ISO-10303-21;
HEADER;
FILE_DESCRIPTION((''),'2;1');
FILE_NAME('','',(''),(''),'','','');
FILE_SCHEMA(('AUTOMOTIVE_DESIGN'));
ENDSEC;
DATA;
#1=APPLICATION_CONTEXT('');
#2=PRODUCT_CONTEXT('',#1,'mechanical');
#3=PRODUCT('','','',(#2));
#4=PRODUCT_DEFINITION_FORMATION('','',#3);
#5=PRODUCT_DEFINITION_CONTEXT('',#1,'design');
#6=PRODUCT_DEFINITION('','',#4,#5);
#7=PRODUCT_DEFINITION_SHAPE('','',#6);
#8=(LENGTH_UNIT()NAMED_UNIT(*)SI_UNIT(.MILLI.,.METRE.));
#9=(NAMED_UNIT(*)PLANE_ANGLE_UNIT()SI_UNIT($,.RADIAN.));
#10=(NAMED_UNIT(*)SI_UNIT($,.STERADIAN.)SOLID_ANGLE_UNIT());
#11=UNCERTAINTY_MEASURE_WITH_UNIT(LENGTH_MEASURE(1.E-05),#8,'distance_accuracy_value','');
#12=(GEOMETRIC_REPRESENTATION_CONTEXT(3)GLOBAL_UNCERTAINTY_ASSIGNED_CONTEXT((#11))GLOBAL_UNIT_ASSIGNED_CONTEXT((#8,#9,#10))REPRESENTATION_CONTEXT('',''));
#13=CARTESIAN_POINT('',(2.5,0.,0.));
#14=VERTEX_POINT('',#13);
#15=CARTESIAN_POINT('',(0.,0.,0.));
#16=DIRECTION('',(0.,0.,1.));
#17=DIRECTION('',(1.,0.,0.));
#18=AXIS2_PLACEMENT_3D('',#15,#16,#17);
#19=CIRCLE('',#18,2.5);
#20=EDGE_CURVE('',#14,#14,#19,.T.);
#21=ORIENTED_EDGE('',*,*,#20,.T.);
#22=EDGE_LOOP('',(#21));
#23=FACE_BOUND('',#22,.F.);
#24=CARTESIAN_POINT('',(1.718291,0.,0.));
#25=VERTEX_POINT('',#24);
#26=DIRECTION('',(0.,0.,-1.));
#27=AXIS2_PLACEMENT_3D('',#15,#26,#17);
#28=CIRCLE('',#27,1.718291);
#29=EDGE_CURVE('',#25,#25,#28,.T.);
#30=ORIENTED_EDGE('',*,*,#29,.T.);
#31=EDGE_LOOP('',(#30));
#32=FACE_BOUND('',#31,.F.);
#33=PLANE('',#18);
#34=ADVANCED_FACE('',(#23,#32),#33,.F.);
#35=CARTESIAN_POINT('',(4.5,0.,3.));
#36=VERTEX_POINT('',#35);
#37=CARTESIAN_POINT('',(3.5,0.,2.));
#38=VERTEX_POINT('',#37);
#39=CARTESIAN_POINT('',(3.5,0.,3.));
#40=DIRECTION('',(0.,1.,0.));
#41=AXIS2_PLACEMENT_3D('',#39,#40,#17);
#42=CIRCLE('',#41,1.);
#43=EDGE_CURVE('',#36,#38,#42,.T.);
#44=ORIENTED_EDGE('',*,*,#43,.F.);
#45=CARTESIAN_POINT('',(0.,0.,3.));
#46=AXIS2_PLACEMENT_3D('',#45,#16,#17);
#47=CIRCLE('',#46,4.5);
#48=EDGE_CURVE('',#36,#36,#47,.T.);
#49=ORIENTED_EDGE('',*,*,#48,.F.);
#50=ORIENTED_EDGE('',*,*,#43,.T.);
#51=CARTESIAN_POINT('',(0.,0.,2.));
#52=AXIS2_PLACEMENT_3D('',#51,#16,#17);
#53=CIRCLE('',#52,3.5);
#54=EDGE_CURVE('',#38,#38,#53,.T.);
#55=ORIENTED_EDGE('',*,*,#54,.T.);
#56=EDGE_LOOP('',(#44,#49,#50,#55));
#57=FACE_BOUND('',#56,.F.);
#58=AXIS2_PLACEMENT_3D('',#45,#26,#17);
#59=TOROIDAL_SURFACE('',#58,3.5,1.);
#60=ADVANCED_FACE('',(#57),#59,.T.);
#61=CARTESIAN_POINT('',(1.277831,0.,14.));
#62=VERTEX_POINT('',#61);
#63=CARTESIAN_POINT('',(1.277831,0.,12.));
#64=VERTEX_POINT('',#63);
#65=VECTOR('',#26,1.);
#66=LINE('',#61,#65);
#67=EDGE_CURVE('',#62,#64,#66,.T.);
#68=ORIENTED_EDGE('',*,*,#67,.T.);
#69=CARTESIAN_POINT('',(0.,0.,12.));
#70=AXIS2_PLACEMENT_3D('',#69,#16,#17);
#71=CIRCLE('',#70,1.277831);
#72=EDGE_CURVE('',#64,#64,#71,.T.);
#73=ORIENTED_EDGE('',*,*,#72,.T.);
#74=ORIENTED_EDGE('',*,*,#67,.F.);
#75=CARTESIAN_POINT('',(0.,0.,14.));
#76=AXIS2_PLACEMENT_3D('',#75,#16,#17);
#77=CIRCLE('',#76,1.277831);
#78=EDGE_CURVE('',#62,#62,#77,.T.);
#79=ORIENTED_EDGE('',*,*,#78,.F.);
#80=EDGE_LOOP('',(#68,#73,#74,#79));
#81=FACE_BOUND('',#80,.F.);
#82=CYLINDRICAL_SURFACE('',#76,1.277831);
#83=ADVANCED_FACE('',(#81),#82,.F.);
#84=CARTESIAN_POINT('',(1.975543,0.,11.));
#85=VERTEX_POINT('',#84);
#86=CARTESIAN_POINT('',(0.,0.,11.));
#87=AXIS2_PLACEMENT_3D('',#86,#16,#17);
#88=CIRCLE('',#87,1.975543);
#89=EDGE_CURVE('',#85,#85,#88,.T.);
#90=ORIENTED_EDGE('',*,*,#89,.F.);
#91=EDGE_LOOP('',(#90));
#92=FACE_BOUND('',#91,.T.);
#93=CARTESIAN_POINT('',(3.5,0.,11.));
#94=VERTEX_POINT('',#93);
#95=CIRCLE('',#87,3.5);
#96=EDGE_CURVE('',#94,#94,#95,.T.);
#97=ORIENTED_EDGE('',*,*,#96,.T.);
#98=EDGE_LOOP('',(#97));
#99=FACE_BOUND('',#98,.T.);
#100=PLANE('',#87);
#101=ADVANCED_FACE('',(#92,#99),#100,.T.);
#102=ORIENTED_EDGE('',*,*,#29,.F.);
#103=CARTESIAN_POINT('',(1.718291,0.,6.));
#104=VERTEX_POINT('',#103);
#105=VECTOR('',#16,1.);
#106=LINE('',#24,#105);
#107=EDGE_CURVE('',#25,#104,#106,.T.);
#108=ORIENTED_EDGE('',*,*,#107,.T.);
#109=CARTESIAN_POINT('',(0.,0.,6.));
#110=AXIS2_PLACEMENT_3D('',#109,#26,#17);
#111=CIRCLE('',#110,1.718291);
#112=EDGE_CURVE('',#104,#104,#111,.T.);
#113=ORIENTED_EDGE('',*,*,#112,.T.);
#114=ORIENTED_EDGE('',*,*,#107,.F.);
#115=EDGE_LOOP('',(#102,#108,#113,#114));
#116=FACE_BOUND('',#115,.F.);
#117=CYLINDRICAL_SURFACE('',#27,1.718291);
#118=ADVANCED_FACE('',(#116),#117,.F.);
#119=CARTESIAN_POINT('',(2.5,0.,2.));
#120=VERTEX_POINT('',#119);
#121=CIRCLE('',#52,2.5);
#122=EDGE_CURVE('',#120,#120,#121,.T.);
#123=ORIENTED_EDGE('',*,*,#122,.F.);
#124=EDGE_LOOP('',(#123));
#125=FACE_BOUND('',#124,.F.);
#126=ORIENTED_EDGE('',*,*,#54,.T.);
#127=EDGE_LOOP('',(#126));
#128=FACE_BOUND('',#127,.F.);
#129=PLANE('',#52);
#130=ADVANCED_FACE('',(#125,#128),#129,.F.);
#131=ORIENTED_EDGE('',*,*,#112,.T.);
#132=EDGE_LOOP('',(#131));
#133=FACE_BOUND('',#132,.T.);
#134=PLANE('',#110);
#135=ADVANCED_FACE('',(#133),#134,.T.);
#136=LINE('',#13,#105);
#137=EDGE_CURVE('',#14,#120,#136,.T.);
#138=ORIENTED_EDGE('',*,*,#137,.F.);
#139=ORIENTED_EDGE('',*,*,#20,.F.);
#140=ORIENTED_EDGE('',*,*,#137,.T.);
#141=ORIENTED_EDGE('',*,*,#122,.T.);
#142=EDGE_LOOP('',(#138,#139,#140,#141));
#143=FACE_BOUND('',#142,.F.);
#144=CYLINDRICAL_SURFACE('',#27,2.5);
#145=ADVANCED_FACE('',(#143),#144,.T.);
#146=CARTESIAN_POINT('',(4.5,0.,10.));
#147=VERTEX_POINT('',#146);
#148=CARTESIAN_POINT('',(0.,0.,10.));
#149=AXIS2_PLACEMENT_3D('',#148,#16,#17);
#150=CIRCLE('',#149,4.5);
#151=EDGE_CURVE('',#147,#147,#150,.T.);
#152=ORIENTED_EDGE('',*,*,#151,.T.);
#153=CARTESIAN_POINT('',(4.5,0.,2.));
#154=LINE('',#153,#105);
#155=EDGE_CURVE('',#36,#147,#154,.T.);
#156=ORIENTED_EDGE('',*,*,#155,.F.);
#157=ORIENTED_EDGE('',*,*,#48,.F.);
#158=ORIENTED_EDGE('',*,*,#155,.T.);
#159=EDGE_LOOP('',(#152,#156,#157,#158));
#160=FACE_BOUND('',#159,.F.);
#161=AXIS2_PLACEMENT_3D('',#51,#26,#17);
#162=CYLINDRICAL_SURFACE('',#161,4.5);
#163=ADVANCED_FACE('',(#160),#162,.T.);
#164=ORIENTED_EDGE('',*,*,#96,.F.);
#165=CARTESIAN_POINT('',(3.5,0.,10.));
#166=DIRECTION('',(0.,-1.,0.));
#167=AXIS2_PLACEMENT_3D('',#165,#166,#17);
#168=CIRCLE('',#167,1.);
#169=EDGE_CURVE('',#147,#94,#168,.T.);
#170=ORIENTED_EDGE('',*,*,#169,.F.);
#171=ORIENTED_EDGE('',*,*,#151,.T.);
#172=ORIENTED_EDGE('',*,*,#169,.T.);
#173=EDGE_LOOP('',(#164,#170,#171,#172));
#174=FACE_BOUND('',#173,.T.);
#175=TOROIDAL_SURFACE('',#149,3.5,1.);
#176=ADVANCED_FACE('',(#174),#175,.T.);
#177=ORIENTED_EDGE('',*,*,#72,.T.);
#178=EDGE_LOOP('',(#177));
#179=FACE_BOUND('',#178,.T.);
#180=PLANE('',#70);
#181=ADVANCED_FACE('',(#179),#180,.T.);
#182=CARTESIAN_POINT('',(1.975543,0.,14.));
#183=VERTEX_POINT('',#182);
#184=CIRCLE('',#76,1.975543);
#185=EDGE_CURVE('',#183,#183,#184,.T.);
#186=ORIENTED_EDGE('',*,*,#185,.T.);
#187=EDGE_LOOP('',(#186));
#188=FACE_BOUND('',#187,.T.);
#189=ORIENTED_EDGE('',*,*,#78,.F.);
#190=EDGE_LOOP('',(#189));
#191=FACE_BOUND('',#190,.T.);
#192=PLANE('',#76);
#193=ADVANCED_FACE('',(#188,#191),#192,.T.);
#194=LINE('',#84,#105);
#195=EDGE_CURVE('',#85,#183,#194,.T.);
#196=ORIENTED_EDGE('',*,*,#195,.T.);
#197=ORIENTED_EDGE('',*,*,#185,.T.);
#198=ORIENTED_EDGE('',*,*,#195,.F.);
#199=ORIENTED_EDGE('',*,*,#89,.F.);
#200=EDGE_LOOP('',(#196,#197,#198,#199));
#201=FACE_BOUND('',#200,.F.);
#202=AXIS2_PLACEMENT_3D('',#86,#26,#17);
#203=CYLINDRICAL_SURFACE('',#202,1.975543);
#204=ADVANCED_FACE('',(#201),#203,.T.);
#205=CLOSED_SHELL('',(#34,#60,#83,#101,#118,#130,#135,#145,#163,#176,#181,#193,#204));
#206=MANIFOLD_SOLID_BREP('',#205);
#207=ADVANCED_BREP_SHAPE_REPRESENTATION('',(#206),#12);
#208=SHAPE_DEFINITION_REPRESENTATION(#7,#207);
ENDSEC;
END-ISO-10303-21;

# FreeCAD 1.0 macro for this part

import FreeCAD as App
import Part
import Sketcher
from FreeCAD import Vector
Q = App.Units.Quantity


def edges_at(feature, points):
    """Names of the edges that pass closest to the given points."""
    edges = feature.Shape.Edges
    near = lambda p: min(range(len(edges)), key=lambda i: edges[i].distToShape(Part.Vertex(*p))[0])
    return sorted({f"Edge{near(p) + 1}" for p in points})

doc = App.newDocument("Part")
params = doc.addObject("Spreadsheet::Sheet", "Params")
for row, (alias, value) in enumerate([
    ("sketch1_diameter", "5 mm"),
    ("pad1_length", "2 mm"),
    ("sketch2_diameter", "9 mm"),
    ("pad2_length", "9 mm"),
    ("pocket1_length", "6 mm"),
    ("fillet_radius", "1 mm"),
    ("pad3_length", "3 mm"),
    ("pocket2_length", "2 mm"),
], start=1):
    params.set(f"A{row}", alias)
    params.set(f"B{row}", "=" + value)
    params.setAlias(f"B{row}", alias)

body = doc.addObject("PartDesign::Body", "Body")

# Sketch on XY plane
sketch1 = body.newObject("Sketcher::SketchObject", "Sketch")
sketch1.AttachmentSupport = (doc.getObject("XY_Plane"), [""])
sketch1.MapMode = "FlatFace"
sketch1.addGeometry(Part.Circle(Vector(0, 0, 0), Vector(0, 0, 1), 2.5), False)
sketch1.addConstraint(Sketcher.Constraint("Coincident", 0, 3, -1, 1))
sketch1.addConstraint(Sketcher.Constraint("Diameter", 0, Q("5 mm")))
sketch1.setExpression("Constraints[1]", "Params.sketch1_diameter")
pad1 = body.newObject("PartDesign::Pad", "Pad")
pad1.Profile = sketch1
pad1.setExpression("Length", "Params.pad1_length")

# Sketch on XY plane
sketch2 = body.newObject("Sketcher::SketchObject", "Sketch001")
sketch2.AttachmentSupport = (doc.getObject("XY_Plane"), [""])
sketch2.MapMode = "FlatFace"
sketch2.AttachmentOffset = App.Placement(Vector(0, 0, 2), App.Rotation())
sketch2.addGeometry(Part.Circle(Vector(0, 0, 0), Vector(0, 0, 1), 4.5), False)
sketch2.addConstraint(Sketcher.Constraint("Coincident", 0, 3, -1, 1))
sketch2.addConstraint(Sketcher.Constraint("Diameter", 0, Q("9 mm")))
sketch2.setExpression("Constraints[1]", "Params.sketch2_diameter")
pad2 = body.newObject("PartDesign::Pad", "Pad001")
pad2.Profile = sketch2
pad2.setExpression("Length", "Params.pad2_length")

# Sketch on XY plane
sketch3 = body.newObject("Sketcher::SketchObject", "Sketch002")
sketch3.AttachmentSupport = (doc.getObject("XY_Plane"), [""])
sketch3.MapMode = "FlatFace"
sketch3.addGeometry(Part.Circle(Vector(0, 0, 0), Vector(0, 0, 1), 1.7), False)
sketch3.addConstraint(Sketcher.Constraint("Coincident", 0, 3, -1, 1))
sketch3.addConstraint(Sketcher.Constraint("Diameter", 0, Q("3.436582 mm")))
pocket1 = body.newObject("PartDesign::Pocket", "Pocket")
pocket1.Profile = sketch3
pocket1.setExpression("Length", "Params.pocket1_length")
pocket1.Reversed = True
doc.recompute()

fillet = body.newObject("PartDesign::Fillet", "Fillet")
fillet.Base = (pocket1, edges_at(pocket1, [(-4.5, 0, 11), (-4.5, 0, 2)]))
fillet.setExpression("Radius", "Params.fillet_radius")

# Sketch on XY plane
sketch4 = body.newObject("Sketcher::SketchObject", "Sketch003")
sketch4.AttachmentSupport = (doc.getObject("XY_Plane"), [""])
sketch4.MapMode = "FlatFace"
sketch4.AttachmentOffset = App.Placement(Vector(0, 0, 11), App.Rotation())
sketch4.addGeometry(Part.Circle(Vector(0, 0, 0), Vector(0, 0, 1), 2), False)
sketch4.addConstraint(Sketcher.Constraint("Coincident", 0, 3, -1, 1))
sketch4.addConstraint(Sketcher.Constraint("Diameter", 0, Q("3.951086 mm")))
pad3 = body.newObject("PartDesign::Pad", "Pad002")
pad3.Profile = sketch4
pad3.setExpression("Length", "Params.pad3_length")

# Sketch on XY plane
sketch5 = body.newObject("Sketcher::SketchObject", "Sketch004")
sketch5.AttachmentSupport = (doc.getObject("XY_Plane"), [""])
sketch5.MapMode = "FlatFace"
sketch5.AttachmentOffset = App.Placement(Vector(0, 0, 14), App.Rotation())
sketch5.addGeometry(Part.Circle(Vector(0, 0, 0), Vector(0, 0, 1), 1.3), False)
sketch5.addConstraint(Sketcher.Constraint("Coincident", 0, 3, -1, 1))
sketch5.addConstraint(Sketcher.Constraint("Diameter", 0, Q("2.555662 mm")))
pocket2 = body.newObject("PartDesign::Pocket", "Pocket001")
pocket2.Profile = sketch5
pocket2.setExpression("Length", "Params.pocket2_length")

doc.recompute()
